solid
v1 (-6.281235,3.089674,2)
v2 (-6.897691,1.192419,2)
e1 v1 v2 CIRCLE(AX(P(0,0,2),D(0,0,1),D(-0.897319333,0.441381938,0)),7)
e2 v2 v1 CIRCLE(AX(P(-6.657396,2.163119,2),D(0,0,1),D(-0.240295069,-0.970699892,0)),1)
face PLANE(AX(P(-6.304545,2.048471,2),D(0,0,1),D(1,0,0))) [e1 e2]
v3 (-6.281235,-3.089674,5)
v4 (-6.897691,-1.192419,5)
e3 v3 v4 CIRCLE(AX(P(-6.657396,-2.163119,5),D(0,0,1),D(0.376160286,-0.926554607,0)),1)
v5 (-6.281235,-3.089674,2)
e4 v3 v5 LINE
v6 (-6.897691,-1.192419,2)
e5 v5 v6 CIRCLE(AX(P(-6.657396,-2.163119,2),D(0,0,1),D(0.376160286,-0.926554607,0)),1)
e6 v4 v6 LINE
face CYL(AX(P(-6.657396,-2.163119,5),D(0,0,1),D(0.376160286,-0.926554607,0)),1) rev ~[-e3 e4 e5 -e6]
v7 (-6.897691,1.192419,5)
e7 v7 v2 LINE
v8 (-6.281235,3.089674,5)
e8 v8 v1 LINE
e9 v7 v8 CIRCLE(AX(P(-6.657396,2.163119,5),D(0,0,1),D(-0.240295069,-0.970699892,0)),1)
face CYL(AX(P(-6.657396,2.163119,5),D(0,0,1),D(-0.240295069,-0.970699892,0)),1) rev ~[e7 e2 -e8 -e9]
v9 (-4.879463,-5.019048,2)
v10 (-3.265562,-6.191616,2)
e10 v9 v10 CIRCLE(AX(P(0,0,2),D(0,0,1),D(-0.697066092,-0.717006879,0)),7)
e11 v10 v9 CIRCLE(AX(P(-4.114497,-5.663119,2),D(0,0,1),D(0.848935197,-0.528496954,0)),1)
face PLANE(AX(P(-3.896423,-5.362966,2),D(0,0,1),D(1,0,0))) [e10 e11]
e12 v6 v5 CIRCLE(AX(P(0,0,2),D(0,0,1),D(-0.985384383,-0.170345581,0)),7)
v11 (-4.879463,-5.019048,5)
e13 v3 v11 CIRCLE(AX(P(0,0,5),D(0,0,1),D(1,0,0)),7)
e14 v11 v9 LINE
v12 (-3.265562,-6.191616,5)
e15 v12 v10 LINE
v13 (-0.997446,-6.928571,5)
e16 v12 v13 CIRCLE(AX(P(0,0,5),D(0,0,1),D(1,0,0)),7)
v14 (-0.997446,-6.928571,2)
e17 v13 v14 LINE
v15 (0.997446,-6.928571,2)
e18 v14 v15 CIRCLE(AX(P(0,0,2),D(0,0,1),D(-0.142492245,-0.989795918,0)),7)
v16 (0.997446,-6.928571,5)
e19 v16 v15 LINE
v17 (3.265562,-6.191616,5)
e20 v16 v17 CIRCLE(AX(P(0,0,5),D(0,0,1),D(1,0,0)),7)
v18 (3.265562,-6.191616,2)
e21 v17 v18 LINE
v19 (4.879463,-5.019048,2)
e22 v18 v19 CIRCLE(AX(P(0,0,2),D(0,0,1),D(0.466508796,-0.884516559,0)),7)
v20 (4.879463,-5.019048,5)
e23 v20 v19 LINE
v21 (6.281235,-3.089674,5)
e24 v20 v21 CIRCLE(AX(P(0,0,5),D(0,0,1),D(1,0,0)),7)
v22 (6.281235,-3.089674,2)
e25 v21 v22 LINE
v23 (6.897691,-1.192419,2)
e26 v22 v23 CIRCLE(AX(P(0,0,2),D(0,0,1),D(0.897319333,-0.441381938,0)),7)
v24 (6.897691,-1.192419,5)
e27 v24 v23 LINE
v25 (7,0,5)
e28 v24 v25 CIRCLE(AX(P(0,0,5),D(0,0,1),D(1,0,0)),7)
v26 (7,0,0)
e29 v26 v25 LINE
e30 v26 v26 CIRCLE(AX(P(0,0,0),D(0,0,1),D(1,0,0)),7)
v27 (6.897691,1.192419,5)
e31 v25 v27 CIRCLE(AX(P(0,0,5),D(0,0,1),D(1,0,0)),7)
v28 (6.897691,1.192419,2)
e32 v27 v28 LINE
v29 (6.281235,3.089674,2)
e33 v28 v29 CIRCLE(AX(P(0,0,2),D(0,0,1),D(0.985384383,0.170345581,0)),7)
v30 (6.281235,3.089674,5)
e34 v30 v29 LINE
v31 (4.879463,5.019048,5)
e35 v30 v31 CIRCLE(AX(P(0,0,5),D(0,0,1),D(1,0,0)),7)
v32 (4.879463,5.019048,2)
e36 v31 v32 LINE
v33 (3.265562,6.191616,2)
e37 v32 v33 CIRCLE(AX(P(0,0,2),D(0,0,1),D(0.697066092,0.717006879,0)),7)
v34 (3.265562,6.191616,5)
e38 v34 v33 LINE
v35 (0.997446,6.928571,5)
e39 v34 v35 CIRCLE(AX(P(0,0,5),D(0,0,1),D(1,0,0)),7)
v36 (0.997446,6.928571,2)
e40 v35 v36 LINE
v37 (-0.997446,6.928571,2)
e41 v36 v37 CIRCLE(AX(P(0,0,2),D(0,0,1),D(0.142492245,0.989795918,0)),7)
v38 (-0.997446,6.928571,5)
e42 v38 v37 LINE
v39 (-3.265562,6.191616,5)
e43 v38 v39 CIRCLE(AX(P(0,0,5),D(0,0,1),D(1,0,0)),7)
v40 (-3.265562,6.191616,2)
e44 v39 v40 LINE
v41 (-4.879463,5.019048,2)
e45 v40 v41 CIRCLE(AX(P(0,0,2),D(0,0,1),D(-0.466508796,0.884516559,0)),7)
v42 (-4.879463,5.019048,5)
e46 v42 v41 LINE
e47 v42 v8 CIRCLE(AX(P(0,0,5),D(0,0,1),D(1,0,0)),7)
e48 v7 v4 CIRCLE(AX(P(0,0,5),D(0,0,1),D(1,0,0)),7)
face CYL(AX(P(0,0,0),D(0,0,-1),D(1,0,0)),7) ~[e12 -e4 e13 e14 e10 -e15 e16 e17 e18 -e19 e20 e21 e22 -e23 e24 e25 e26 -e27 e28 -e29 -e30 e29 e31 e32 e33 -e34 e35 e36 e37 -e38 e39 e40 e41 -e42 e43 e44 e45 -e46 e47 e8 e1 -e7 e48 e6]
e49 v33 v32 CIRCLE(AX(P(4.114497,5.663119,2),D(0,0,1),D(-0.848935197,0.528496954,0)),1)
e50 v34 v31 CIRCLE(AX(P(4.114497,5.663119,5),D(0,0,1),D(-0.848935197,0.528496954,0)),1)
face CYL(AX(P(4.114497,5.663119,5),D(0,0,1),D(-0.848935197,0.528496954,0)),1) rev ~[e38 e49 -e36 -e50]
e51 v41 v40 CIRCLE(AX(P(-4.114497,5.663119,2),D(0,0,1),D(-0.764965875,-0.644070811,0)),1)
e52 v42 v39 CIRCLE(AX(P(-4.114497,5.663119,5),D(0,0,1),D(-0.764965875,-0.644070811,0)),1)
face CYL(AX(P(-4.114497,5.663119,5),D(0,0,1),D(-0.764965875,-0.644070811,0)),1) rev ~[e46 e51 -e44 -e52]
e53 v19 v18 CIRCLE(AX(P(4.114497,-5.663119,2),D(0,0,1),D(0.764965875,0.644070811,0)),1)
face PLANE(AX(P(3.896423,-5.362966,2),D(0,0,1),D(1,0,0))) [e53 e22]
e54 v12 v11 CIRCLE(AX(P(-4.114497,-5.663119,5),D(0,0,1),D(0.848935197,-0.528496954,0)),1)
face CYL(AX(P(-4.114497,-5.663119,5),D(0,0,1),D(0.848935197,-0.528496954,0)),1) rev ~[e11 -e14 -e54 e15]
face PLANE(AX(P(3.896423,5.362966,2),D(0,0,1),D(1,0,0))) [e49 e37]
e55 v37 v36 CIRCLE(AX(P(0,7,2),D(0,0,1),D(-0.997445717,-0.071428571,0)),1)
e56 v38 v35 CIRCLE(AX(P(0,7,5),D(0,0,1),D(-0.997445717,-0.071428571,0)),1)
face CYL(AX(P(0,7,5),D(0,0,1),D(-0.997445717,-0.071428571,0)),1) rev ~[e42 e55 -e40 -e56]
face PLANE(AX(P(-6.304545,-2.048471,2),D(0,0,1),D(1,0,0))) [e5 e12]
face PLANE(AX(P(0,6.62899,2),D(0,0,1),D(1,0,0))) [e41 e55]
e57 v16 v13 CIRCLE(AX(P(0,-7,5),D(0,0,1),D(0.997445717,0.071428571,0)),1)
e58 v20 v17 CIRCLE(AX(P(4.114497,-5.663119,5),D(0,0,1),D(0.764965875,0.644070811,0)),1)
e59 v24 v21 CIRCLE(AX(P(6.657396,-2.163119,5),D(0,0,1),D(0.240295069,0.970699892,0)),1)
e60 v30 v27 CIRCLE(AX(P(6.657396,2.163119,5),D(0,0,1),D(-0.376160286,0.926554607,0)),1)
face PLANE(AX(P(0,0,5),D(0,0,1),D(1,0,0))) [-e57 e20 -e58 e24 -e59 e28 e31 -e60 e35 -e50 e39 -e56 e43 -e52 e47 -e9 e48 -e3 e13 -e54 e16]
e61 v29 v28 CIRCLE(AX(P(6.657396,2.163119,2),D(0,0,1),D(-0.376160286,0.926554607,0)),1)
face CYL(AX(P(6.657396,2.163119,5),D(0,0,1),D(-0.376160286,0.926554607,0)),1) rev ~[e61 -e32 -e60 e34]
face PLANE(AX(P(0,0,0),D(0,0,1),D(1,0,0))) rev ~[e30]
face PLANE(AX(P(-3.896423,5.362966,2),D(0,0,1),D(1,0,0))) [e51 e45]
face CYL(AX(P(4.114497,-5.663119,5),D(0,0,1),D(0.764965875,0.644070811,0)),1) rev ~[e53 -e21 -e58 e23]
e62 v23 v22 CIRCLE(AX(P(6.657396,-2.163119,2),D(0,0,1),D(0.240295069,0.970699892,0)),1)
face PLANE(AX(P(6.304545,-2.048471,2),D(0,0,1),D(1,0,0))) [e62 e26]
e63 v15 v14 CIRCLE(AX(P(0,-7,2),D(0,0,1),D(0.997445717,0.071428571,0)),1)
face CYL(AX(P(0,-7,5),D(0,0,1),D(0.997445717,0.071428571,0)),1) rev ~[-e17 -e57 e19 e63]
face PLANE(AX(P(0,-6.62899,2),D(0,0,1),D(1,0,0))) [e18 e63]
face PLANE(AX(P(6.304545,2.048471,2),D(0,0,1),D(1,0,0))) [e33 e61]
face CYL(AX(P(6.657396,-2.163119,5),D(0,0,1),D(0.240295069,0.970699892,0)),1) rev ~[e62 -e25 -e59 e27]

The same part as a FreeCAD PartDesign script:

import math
import FreeCAD as App
import Part
import Sketcher

doc = App.newDocument("Part")
body = doc.addObject("PartDesign::Body", "Body")

# Sketch on XY plane
sketch1 = body.newObject("Sketcher::SketchObject", "Sketch")
sketch1.AttachmentSupport = (doc.getObject("XY_Plane"), [""])
sketch1.MapMode = "FlatFace"
sketch1.addGeometry(Part.Circle(App.Vector(0, 0, 0), App.Vector(0, 0, 1), 7), False)
sketch1.addConstraint([
    Sketcher.Constraint("Coincident", 0, 3, -1, 1),
    Sketcher.Constraint("Diameter", 0, 14.0),
])
pad1 = body.newObject("PartDesign::Pad", "Pad")
pad1.Profile = sketch1
pad1.Length = 5

# Sketch on XY plane
sketch2 = body.newObject("Sketcher::SketchObject", "Sketch001")
sketch2.AttachmentSupport = (doc.getObject("XY_Plane"), [""])
sketch2.MapMode = "FlatFace"
sketch2.AttachmentOffset = App.Placement(App.Vector(0, 0, 5), App.Rotation())
sketch2.addGeometry([
    Part.ArcOfCircle(Part.Circle(App.Vector(0, 0, 0), App.Vector(0, 0, 1), 7), math.radians(81.81), math.radians(98.19)),  # 0
    Part.ArcOfCircle(Part.Circle(App.Vector(0, 7, 0), App.Vector(0, 0, 1), 1), math.radians(-176), math.radians(-4)),  # 1
    Part.ArcOfCircle(Part.Circle(App.Vector(0, 0, 0), App.Vector(0, 0, 1), 7), math.radians(45.81), math.radians(62.19)),  # 2
    Part.ArcOfCircle(Part.Circle(App.Vector(4.1, 5.7, 0), App.Vector(0, 0, 1), 1), math.radians(148), math.radians(320)),  # 3
    Part.ArcOfCircle(Part.Circle(App.Vector(0, 0, 0), App.Vector(0, 0, 1), 7), math.radians(9.81), math.radians(26.19)),  # 4
    Part.ArcOfCircle(Part.Circle(App.Vector(6.7, 2.2, 0), App.Vector(0, 0, 1), 1), math.radians(112), math.radians(284)),  # 5
    Part.ArcOfCircle(Part.Circle(App.Vector(0, 0, 0), App.Vector(0, 0, 1), 7), math.radians(-26.19), math.radians(-9.81)),  # 6
    Part.ArcOfCircle(Part.Circle(App.Vector(6.7, -2.2, 0), App.Vector(0, 0, 1), 1), math.radians(76), math.radians(248)),  # 7
    Part.ArcOfCircle(Part.Circle(App.Vector(0, 0, 0), App.Vector(0, 0, 1), 7), math.radians(-62.19), math.radians(-45.81)),  # 8
    Part.ArcOfCircle(Part.Circle(App.Vector(4.1, -5.7, 0), App.Vector(0, 0, 1), 1), math.radians(40), math.radians(212)),  # 9
    Part.ArcOfCircle(Part.Circle(App.Vector(0, -7, 0), App.Vector(0, 0, 1), 1), math.radians(4), math.radians(176)),  # 10
    Part.ArcOfCircle(Part.Circle(App.Vector(0, 0, 0), App.Vector(0, 0, 1), 7), math.radians(-98.19), math.radians(-81.81)),  # 11
    Part.ArcOfCircle(Part.Circle(App.Vector(-4.1, -5.7, 0), App.Vector(0, 0, 1), 1), math.radians(-32), math.radians(140)),  # 12
    Part.ArcOfCircle(Part.Circle(App.Vector(0, 0, 0), App.Vector(0, 0, 1), 7), math.radians(-134.19), math.radians(-117.81)),  # 13
    Part.ArcOfCircle(Part.Circle(App.Vector(-6.7, -2.2, 0), App.Vector(0, 0, 1), 1), math.radians(-68), math.radians(104)),  # 14
    Part.ArcOfCircle(Part.Circle(App.Vector(0, 0, 0), App.Vector(0, 0, 1), 7), math.radians(-170.19), math.radians(-153.81)),  # 15
    Part.ArcOfCircle(Part.Circle(App.Vector(-6.7, 2.2, 0), App.Vector(0, 0, 1), 1), math.radians(-104), math.radians(68)),  # 16
    Part.ArcOfCircle(Part.Circle(App.Vector(0, 0, 0), App.Vector(0, 0, 1), 7), math.radians(153.81), math.radians(170.19)),  # 17
    Part.ArcOfCircle(Part.Circle(App.Vector(-4.1, 5.7, 0), App.Vector(0, 0, 1), 1), math.radians(-140), math.radians(32)),  # 18
    Part.ArcOfCircle(Part.Circle(App.Vector(0, 0, 0), App.Vector(0, 0, 1), 7), math.radians(117.81), math.radians(134.19)),  # 19
], False)
sketch2.addConstraint([
    Sketcher.Constraint("Coincident", 0, 1, 1, 2),
    Sketcher.Constraint("Coincident", 1, 1, 0, 2),
    Sketcher.Constraint("Coincident", 2, 1, 3, 2),
    Sketcher.Constraint("Coincident", 3, 1, 2, 2),
    Sketcher.Constraint("Coincident", 4, 1, 5, 2),
    Sketcher.Constraint("Coincident", 5, 1, 4, 2),
    Sketcher.Constraint("Coincident", 6, 1, 7, 2),
    Sketcher.Constraint("Coincident", 7, 1, 6, 2),
    Sketcher.Constraint("Coincident", 8, 1, 9, 2),
    Sketcher.Constraint("Coincident", 9, 1, 8, 2),
    Sketcher.Constraint("Coincident", 10, 1, 11, 2),
    Sketcher.Constraint("Coincident", 11, 1, 10, 2),
    Sketcher.Constraint("Coincident", 12, 1, 13, 2),
    Sketcher.Constraint("Coincident", 13, 1, 12, 2),
    Sketcher.Constraint("Coincident", 14, 1, 15, 2),
    Sketcher.Constraint("Coincident", 15, 1, 14, 2),
    Sketcher.Constraint("Coincident", 16, 1, 17, 2),
    Sketcher.Constraint("Coincident", 17, 1, 16, 2),
    Sketcher.Constraint("Coincident", 18, 1, 19, 2),
    Sketcher.Constraint("Coincident", 19, 1, 18, 2),
    Sketcher.Constraint("Coincident", 0, 3, -1, 1),
    Sketcher.Constraint("Coincident", 2, 3, -1, 1),
    Sketcher.Constraint("Coincident", 4, 3, -1, 1),
    Sketcher.Constraint("Coincident", 6, 3, -1, 1),
    Sketcher.Constraint("Coincident", 8, 3, -1, 1),
    Sketcher.Constraint("Coincident", 11, 3, -1, 1),
    Sketcher.Constraint("Coincident", 13, 3, -1, 1),
    Sketcher.Constraint("Coincident", 15, 3, -1, 1),
    Sketcher.Constraint("Coincident", 17, 3, -1, 1),
    Sketcher.Constraint("Coincident", 19, 3, -1, 1),
    Sketcher.Constraint("Equal", 0, 2),
    Sketcher.Constraint("Equal", 1, 3),
    Sketcher.Constraint("Equal", 2, 4),
    Sketcher.Constraint("Equal", 3, 5),
    Sketcher.Constraint("Equal", 4, 6),
    Sketcher.Constraint("Equal", 5, 7),
    Sketcher.Constraint("Equal", 6, 8),
    Sketcher.Constraint("Equal", 7, 9),
    Sketcher.Constraint("Equal", 9, 10),
    Sketcher.Constraint("Equal", 8, 11),
    Sketcher.Constraint("Equal", 10, 12),
    Sketcher.Constraint("Equal", 11, 13),
    Sketcher.Constraint("Equal", 12, 14),
    Sketcher.Constraint("Equal", 13, 15),
    Sketcher.Constraint("Equal", 14, 16),
    Sketcher.Constraint("Equal", 15, 17),
    Sketcher.Constraint("Equal", 16, 18),
    Sketcher.Constraint("Equal", 17, 19),
    Sketcher.Constraint("Symmetric", 1, 3, 10, 3, -1, 1),
    Sketcher.Constraint("Symmetric", 3, 3, 12, 3, -1, 1),
    Sketcher.Constraint("Symmetric", 5, 3, 14, 3, -1, 1),
    Sketcher.Constraint("Symmetric", 7, 3, 16, 3, -1, 1),
    Sketcher.Constraint("Symmetric", 9, 3, 18, 3, -1, 1),
    Sketcher.Constraint("Symmetric", 9, 3, 12, 3, -2),
    Sketcher.Constraint("Symmetric", 7, 3, 14, 3, -2),
    Sketcher.Constraint("PointOnObject", 1, 3, -2),
    Sketcher.Constraint("Radius", 0, 7.0),
    Sketcher.Constraint("Radius", 1, 1.0),
    Sketcher.Constraint("DistanceY", -1, 1, 1, 3, 7.0),
    Sketcher.Constraint("DistanceY", 5, 3, 3, 3, 3.5),
    Sketcher.Constraint("DistanceX", 3, 3, 5, 3, 2.542899),
    Sketcher.Constraint("DistanceX", 3, 1, 2, 1, 1.613901),
    Sketcher.Constraint("DistanceY", 7, 3, 7, 1, 0.9707),
])
pocket1 = body.newObject("PartDesign::Pocket", "Pocket")
pocket1.Profile = sketch2
pocket1.Length = 3

doc.recompute()
